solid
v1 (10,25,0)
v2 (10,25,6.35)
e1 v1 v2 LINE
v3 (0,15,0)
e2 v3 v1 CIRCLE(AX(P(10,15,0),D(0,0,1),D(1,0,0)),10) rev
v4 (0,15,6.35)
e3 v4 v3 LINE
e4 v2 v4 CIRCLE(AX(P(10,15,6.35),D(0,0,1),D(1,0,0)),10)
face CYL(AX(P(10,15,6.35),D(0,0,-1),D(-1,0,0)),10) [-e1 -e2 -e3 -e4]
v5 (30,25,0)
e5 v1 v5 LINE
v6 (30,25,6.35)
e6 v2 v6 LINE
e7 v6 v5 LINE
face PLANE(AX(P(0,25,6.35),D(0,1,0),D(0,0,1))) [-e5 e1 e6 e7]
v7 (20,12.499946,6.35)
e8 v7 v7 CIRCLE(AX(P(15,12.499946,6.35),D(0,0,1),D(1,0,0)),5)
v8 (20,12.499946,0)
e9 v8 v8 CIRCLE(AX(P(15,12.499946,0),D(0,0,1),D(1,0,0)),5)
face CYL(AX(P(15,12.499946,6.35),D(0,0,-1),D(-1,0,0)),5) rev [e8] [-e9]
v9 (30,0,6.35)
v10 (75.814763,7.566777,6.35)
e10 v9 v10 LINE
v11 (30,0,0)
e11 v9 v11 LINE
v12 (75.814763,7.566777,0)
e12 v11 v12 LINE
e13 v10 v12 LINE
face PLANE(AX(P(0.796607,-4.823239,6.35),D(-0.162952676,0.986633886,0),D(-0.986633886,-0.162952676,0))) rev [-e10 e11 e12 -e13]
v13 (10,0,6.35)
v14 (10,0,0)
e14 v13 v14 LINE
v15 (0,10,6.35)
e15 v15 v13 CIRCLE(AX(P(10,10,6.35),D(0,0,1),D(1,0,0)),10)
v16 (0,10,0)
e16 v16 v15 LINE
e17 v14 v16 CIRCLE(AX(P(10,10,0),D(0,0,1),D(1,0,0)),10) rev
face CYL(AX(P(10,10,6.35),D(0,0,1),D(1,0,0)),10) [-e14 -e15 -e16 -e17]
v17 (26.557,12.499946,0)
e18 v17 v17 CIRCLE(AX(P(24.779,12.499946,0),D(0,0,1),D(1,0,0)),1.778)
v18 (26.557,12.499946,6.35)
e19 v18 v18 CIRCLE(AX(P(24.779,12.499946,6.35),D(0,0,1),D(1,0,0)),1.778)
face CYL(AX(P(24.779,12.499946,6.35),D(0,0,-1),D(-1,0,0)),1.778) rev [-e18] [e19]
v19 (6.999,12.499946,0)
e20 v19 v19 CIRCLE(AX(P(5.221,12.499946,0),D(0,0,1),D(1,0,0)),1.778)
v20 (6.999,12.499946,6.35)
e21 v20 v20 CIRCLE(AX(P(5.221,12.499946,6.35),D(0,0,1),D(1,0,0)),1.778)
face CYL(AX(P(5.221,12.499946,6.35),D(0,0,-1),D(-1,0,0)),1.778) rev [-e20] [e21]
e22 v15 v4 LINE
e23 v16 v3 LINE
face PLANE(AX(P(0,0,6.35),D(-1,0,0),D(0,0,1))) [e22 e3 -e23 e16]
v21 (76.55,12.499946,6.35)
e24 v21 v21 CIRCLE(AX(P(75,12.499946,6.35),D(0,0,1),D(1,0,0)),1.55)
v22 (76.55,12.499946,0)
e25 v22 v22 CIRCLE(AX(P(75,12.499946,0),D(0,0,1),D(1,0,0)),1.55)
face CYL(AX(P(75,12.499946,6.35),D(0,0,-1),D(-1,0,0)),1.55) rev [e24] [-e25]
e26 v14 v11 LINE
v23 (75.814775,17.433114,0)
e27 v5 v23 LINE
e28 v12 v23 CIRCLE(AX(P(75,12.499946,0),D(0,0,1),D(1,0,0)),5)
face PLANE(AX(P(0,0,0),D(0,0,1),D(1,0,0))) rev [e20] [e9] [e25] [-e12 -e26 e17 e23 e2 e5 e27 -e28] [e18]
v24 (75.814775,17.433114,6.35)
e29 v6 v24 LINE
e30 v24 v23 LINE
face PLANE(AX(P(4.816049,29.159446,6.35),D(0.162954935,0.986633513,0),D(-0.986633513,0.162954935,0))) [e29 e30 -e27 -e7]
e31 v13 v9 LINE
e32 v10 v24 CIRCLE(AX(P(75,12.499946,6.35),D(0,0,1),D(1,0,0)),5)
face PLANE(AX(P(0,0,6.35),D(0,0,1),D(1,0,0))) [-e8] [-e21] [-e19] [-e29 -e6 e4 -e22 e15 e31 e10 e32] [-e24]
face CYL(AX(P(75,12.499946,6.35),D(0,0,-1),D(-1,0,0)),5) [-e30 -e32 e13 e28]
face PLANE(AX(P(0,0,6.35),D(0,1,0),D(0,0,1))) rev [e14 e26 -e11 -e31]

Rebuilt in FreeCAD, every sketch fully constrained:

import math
import FreeCAD as App
import Part
import Sketcher
Q = App.Units.Quantity


def edges_at(feature, points):
    """Names of the edges that pass closest to the given points."""
    edges = feature.Shape.Edges
    near = lambda p: min(range(len(edges)), key=lambda i: edges[i].distToShape(Part.Vertex(*p))[0])
    return sorted({f"Edge{near(p) + 1}" for p in points})

doc = App.newDocument("Part")
params = doc.addObject("Spreadsheet::Sheet", "Params")
for row, (alias, value) in enumerate([
    ("sketch1_diameter", "10 mm"),
    ("sketch1_radius", "5 mm"),
    ("sketch1_diameter2", "3.1 mm"),
    ("sketch1_width", "30 mm"),
    ("sketch1_width2", "30 mm"),
    ("pad1_length", "6.35 mm"),
    ("fillet_radius", "10 mm"),
], start=1):
    params.set(f"A{row}", alias)
    params.set(f"B{row}", "=" + value)
    params.setAlias(f"B{row}", alias)

body = doc.addObject("PartDesign::Body", "Body")

sketch1 = body.newObject("Sketcher::SketchObject", "Sketch")
sketch1.AttachmentSupport = (doc.getObject("XY_Plane"), [""])
sketch1.MapMode = "FlatFace"
sketch1.addGeometry(Part.LineSegment(App.Vector(75.814775, 17.433114, 0), App.Vector(30, 25, 0)), False)
sketch1.addGeometry(Part.LineSegment(App.Vector(30, 25, 0), App.Vector(0, 25, 0)), False)
sketch1.addGeometry(Part.LineSegment(App.Vector(0, 25, 0), App.Vector(0, 0, 0)), False)
sketch1.addGeometry(Part.LineSegment(App.Vector(0, 0, 0), App.Vector(30, 0, 0)), False)
sketch1.addGeometry(Part.LineSegment(App.Vector(30, 0, 0), App.Vector(75.814763, 7.566777, 0)), False)
sketch1.addGeometry(Part.ArcOfCircle(Part.Circle(App.Vector(75, 12.499946, 0), App.Vector(0, 0, 1), 5), math.radians(-80.621678), math.radians(80.621547)), False)
sketch1.addGeometry(Part.Circle(App.Vector(5.221, 12.499946, 0), App.Vector(0, 0, 1), 1.778), False)
sketch1.addGeometry(Part.Circle(App.Vector(15, 12.499946, 0), App.Vector(0, 0, 1), 5), False)
sketch1.addGeometry(Part.Circle(App.Vector(24.779, 12.499946, 0), App.Vector(0, 0, 1), 1.778), False)
sketch1.addGeometry(Part.Circle(App.Vector(75, 12.499946, 0), App.Vector(0, 0, 1), 1.55), False)
sketch1.addConstraint(Sketcher.Constraint("Coincident", 0, 2, 1, 1))
sketch1.addConstraint(Sketcher.Constraint("Coincident", 1, 2, 2, 1))
sketch1.addConstraint(Sketcher.Constraint("Coincident", 2, 2, 3, 1))
sketch1.addConstraint(Sketcher.Constraint("Coincident", 3, 2, 4, 1))
sketch1.addConstraint(Sketcher.Constraint("Coincident", 4, 2, 5, 1))
sketch1.addConstraint(Sketcher.Constraint("Coincident", 5, 2, 0, 1))
sketch1.addConstraint(Sketcher.Constraint("Horizontal", 1))
sketch1.addConstraint(Sketcher.Constraint("Vertical", 2))
sketch1.addConstraint(Sketcher.Constraint("Horizontal", 3))
sketch1.addConstraint(Sketcher.Constraint("Coincident", 2, 2, -1, 1))
sketch1.addConstraint(Sketcher.Constraint("Coincident", 9, 3, 5, 3))
sketch1.addConstraint(Sketcher.Constraint("Diameter", 7, Q("10 mm")))
sketch1.addConstraint(Sketcher.Constraint("Radius", 5, Q("5 mm")))
sketch1.addConstraint(Sketcher.Constraint("Diameter", 9, Q("3.1 mm")))
sketch1.addConstraint(Sketcher.Constraint("DistanceX", 1, 2, 1, 1, Q("30 mm")))
sketch1.addConstraint(Sketcher.Constraint("DistanceX", 3, 1, 3, 2, Q("30 mm")))
sketch1.addConstraint(Sketcher.Constraint("DistanceY", 2, 2, 2, 1, Q("25 mm")))
sketch1.addConstraint(Sketcher.Constraint("Diameter", 6, Q("3.556 mm")))
sketch1.addConstraint(Sketcher.Constraint("Diameter", 8, Q("3.556 mm")))
sketch1.addConstraint(Sketcher.Constraint("DistanceX", -1, 1, 5, 3, Q("75 mm")))
sketch1.addConstraint(Sketcher.Constraint("DistanceX", -1, 1, 7, 3, Q("15 mm")))
sketch1.addConstraint(Sketcher.Constraint("DistanceX", -1, 1, 6, 3, Q("5.221 mm")))
sketch1.addConstraint(Sketcher.Constraint("DistanceX", -1, 1, 8, 3, Q("24.779 mm")))
sketch1.addConstraint(Sketcher.Constraint("DistanceY", 4, 2, 5, 3, Q("4.933169 mm")))
sketch1.addConstraint(Sketcher.Constraint("DistanceY", 4, 2, 8, 3, Q("4.933169 mm")))
sketch1.addConstraint(Sketcher.Constraint("Distance", 0, Q("46.435454 mm")))
sketch1.addConstraint(Sketcher.Constraint("Distance", 4, Q("46.435425 mm")))
sketch1.addConstraint(Sketcher.Constraint("DistanceY", -1, 1, 6, 3, Q("12.499946 mm")))
sketch1.addConstraint(Sketcher.Constraint("DistanceY", -1, 1, 7, 3, Q("12.499946 mm")))
sketch1.setExpression("Constraints[11]", "Params.sketch1_diameter")
sketch1.setExpression("Constraints[12]", "Params.sketch1_radius")
sketch1.setExpression("Constraints[13]", "Params.sketch1_diameter2")
sketch1.setExpression("Constraints[14]", "Params.sketch1_width")
sketch1.setExpression("Constraints[15]", "Params.sketch1_width2")
pad1 = body.newObject("PartDesign::Pad", "Pad")
pad1.Profile = sketch1
pad1.setExpression("Length", "Params.pad1_length")
doc.recompute()

fillet = body.newObject("PartDesign::Fillet", "Fillet")
fillet.Base = (pad1, edges_at(pad1, [(0, 0, 3.175), (0, 25, 3.175)]))
fillet.setExpression("Radius", "Params.fillet_radius")

doc.recompute()
